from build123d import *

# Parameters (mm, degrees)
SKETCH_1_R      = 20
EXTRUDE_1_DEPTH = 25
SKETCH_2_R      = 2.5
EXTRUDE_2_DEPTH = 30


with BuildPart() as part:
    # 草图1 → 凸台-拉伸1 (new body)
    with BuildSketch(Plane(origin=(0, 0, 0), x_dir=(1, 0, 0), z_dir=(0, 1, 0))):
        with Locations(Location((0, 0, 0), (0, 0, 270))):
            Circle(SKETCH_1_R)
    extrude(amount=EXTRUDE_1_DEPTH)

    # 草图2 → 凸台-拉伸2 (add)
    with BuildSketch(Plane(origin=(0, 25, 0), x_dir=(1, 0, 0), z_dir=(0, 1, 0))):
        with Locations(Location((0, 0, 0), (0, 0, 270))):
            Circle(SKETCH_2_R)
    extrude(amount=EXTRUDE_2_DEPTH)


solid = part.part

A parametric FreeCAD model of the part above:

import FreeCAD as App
import Part
import Sketcher
Q = App.Units.Quantity

doc = App.newDocument("Part")
body = doc.addObject("PartDesign::Body", "Body")

# Sketch on XZ plane
sketch1 = doc.addObject("Sketcher::SketchObject", "Sketch")
body.addObject(sketch1)
sketch1.AttachmentSupport = (doc.XZ_Plane, [""])
sketch1.MapMode = "FlatFace"
sketch1.addGeometry(Part.Circle(App.Vector(0, 0, 0), App.Vector(0, 0, 1), 20), False)
sketch1.addConstraint([
    Sketcher.Constraint("Coincident", 0, 3, -1, 1),
    Sketcher.Constraint("Diameter", 0, Q("40 mm")),
])
pad1 = doc.addObject("PartDesign::Pad", "Pad")
body.addObject(pad1)
pad1.Profile = sketch1
pad1.Length = 25
pad1.Reversed = True

# Sketch on XZ plane
sketch2 = doc.addObject("Sketcher::SketchObject", "Sketch001")
body.addObject(sketch2)
sketch2.AttachmentSupport = (doc.XZ_Plane, [""])
sketch2.MapMode = "FlatFace"
sketch2.AttachmentOffset = App.Placement(App.Vector(0, 0, -25), App.Rotation())
sketch2.addGeometry(Part.Circle(App.Vector(0, 0, 0), App.Vector(0, 0, 1), 2.5), False)
sketch2.addConstraint([
    Sketcher.Constraint("Coincident", 0, 3, -1, 1),
    Sketcher.Constraint("Diameter", 0, Q("5 mm")),
])
pad2 = doc.addObject("PartDesign::Pad", "Pad001")
body.addObject(pad2)
pad2.Profile = sketch2
pad2.Length = 30
pad2.Reversed = True

doc.recompute()
